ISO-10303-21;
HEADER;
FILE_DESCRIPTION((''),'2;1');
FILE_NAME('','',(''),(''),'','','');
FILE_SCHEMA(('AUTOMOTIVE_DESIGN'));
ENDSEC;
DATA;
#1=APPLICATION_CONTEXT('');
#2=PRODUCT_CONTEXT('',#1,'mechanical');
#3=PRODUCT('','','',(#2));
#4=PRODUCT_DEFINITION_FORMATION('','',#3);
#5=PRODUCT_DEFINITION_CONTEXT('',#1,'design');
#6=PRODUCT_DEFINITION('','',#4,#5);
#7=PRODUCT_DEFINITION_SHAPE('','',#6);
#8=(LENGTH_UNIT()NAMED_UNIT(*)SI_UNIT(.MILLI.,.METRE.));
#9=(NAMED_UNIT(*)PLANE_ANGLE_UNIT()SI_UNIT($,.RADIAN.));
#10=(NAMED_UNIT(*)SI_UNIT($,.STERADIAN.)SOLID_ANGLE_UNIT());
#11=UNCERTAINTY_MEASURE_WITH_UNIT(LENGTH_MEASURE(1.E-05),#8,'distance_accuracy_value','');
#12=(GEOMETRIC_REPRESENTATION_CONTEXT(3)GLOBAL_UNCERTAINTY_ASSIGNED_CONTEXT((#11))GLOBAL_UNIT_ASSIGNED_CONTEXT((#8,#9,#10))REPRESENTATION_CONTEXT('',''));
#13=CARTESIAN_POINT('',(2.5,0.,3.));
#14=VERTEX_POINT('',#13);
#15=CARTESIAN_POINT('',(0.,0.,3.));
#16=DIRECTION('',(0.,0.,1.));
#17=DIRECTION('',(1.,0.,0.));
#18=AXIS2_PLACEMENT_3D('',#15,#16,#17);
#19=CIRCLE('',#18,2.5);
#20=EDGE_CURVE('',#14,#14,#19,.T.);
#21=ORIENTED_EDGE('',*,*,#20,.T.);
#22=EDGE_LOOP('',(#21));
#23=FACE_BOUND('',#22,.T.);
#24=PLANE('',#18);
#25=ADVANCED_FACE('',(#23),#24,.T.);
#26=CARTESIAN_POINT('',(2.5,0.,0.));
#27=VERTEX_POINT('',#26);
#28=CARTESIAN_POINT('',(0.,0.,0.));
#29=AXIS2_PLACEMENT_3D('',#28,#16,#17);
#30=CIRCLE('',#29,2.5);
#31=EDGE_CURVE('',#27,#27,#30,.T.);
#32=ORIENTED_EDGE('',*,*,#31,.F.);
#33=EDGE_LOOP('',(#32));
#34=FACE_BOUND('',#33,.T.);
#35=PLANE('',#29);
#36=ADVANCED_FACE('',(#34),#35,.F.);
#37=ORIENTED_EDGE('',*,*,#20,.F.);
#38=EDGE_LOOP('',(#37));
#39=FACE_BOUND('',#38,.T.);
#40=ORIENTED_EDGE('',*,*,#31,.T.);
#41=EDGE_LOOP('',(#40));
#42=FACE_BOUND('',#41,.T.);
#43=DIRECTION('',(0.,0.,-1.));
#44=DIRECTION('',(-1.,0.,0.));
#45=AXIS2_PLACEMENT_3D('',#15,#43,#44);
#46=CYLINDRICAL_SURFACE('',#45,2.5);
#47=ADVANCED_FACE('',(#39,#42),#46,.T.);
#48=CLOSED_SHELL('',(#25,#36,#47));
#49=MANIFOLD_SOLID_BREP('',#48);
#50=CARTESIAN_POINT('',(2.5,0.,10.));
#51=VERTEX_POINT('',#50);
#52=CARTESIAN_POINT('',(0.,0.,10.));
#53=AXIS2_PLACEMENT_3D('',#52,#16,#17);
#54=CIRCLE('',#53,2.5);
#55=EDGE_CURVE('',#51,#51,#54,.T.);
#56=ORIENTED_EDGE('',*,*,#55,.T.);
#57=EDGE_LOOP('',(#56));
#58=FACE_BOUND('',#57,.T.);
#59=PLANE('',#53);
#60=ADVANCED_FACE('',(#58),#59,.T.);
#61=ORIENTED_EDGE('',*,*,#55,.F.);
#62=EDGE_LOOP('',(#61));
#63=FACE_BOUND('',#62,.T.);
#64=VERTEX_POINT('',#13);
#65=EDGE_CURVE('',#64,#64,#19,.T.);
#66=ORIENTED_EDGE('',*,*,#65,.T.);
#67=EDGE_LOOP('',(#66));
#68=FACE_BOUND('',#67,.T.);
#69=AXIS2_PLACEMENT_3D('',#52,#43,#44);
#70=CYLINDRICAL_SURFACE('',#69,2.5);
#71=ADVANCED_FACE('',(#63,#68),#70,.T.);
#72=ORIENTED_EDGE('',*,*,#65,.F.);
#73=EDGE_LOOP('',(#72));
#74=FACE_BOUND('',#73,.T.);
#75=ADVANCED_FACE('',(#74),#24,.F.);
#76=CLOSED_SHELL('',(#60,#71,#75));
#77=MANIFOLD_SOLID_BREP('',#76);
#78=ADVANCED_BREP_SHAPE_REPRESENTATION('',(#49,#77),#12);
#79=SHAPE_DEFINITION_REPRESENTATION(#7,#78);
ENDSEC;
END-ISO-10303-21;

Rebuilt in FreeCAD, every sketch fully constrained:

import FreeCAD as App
import Part
import Sketcher

doc = App.newDocument("Part")
body = doc.addObject("PartDesign::Body", "Body")

# Sketch on XY plane
sketch1 = body.newObject("Sketcher::SketchObject", "Sketch")
sketch1.AttachmentSupport = (doc.getObject("XY_Plane"), [""])
sketch1.MapMode = "FlatFace"
sketch1.addGeometry(Part.Circle(App.Vector(0, 0, 0), App.Vector(0, 0, 1), 2.5), False)
sketch1.addConstraint(Sketcher.Constraint("Coincident", 0, 3, -1, 1))
sketch1.addConstraint(Sketcher.Constraint("Diameter", 0, 5.0))
pad1 = body.newObject("PartDesign::Pad", "Pad")
pad1.Profile = sketch1
pad1.Length = 3
body2 = doc.addObject("PartDesign::Body", "Body001")

# Sketch on XY plane
sketch2 = body2.newObject("Sketcher::SketchObject", "Sketch001")
sketch2.AttachmentSupport = (doc.getObject("XY_Plane001"), [""])
sketch2.MapMode = "FlatFace"
sketch2.AttachmentOffset = App.Placement(App.Vector(0, 0, 3), App.Rotation())
sketch2.addGeometry(Part.Circle(App.Vector(0, 0, 0), App.Vector(0, 0, 1), 2.5), False)
sketch2.addConstraint(Sketcher.Constraint("Coincident", 0, 3, -1, 1))
sketch2.addConstraint(Sketcher.Constraint("Diameter", 0, 5.0))
pad2 = body2.newObject("PartDesign::Pad", "Pad001")
pad2.Profile = sketch2
pad2.Length = 7

doc.recompute()
